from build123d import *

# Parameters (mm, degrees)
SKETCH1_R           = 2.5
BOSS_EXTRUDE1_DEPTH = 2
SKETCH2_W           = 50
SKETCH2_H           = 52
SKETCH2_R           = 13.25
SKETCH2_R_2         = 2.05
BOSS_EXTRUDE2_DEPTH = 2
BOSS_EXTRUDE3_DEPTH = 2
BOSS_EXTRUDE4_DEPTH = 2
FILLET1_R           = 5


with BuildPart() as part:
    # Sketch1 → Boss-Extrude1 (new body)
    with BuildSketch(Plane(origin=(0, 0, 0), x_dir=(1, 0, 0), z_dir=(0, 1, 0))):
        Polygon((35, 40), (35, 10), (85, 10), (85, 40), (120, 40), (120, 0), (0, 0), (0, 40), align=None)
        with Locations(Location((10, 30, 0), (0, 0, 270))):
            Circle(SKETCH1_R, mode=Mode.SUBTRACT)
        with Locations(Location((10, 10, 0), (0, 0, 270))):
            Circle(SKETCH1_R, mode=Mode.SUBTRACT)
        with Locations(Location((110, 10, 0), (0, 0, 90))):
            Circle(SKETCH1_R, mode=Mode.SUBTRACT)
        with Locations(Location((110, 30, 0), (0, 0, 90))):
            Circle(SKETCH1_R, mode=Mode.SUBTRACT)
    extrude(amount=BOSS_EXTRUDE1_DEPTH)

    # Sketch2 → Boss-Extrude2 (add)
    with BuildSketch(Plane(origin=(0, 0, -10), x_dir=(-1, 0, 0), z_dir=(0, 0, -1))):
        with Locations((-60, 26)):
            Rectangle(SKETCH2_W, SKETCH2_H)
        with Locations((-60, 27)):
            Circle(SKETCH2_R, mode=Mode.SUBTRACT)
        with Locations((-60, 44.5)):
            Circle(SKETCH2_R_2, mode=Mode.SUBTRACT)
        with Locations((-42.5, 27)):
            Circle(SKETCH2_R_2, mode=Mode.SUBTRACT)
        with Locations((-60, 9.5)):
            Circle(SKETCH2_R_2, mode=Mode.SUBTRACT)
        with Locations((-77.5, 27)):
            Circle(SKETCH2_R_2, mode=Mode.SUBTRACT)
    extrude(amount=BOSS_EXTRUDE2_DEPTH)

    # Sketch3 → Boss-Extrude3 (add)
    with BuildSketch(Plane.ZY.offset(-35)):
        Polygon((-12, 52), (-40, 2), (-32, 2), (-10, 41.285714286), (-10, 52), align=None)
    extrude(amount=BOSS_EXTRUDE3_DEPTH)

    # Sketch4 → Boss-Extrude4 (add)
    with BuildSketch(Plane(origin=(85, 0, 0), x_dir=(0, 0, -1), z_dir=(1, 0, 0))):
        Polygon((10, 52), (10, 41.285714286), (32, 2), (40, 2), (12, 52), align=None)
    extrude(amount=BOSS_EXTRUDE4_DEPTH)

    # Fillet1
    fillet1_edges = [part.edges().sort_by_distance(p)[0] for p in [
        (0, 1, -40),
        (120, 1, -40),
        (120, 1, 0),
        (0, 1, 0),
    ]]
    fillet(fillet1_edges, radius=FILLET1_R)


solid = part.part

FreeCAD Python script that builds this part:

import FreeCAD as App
import Part
import Sketcher

V = App.Vector


def edges_at(feature, points):
    """Names of the edges that pass closest to the given points."""
    edges = feature.Shape.Edges
    near = lambda p: min(range(len(edges)), key=lambda i: edges[i].distToShape(Part.Vertex(*p))[0])
    return sorted({f"Edge{near(p) + 1}" for p in points})


def add_polygon(sketch, points):
    """Adds a closed chain of lines whose ends are joined by coincident constraints."""
    first, n = sketch.GeometryCount, len(points)
    for a, b in zip(points, points[1:] + points[:1]):
        sketch.addGeometry(Part.LineSegment(App.Vector(*a, 0), App.Vector(*b, 0)), False)
    for i in range(n):
        sketch.addConstraint(Sketcher.Constraint("Coincident", first + i, 2, first + (i + 1) % n, 1))

doc = App.newDocument("Part")
body = doc.addObject("PartDesign::Body", "Body")

# Sketch on XZ plane
sketch1 = body.newObject("Sketcher::SketchObject", "Sketch")
sketch1.AttachmentSupport = (doc.getObject("XZ_Plane"), [""])
sketch1.MapMode = "FlatFace"
add_polygon(sketch1, [(35, -10), (35, -40), (0, -40), (0, 0), (120, 0), (120, -40), (85, -40), (85, -10)])  # lines 0-7
sketch1.addGeometry(Part.Circle(V(110, -10, 0), V(0, 0, 1), 2.5), False)  # 8
sketch1.addGeometry(Part.Circle(V(10, -10, 0), V(0, 0, 1), 2.5), False)  # 9
sketch1.addGeometry(Part.Circle(V(110, -30, 0), V(0, 0, 1), 2.5), False)  # 10
sketch1.addGeometry(Part.Circle(V(10, -30, 0), V(0, 0, 1), 2.5), False)  # 11
sketch1.addConstraint([
    Sketcher.Constraint("Vertical", 0),
    Sketcher.Constraint("Horizontal", 1),
    Sketcher.Constraint("Vertical", 2),
    Sketcher.Constraint("Horizontal", 3),
    Sketcher.Constraint("Vertical", 4),
    Sketcher.Constraint("Horizontal", 5),
    Sketcher.Constraint("Vertical", 6),
    Sketcher.Constraint("Horizontal", 7),
    Sketcher.Constraint("Coincident", 2, 2, -1, 1),
    Sketcher.Constraint("Equal", 8, 9),
    Sketcher.Constraint("Equal", 9, 10),
    Sketcher.Constraint("Equal", 10, 11),
    Sketcher.Constraint("Horizontal", 8, 3, 9, 3),
    Sketcher.Constraint("Horizontal", 10, 3, 11, 3),
    Sketcher.Constraint("Horizontal", 1, 2, 4, 2),
    Sketcher.Constraint("Horizontal", 9, 3, 6, 2),
    Sketcher.Constraint("Vertical", 8, 3, 10, 3),
    Sketcher.Constraint("Vertical", 9, 3, 11, 3),
    Sketcher.Constraint("Equal", 1, 5),
    Sketcher.Constraint("Diameter", 8, 5.0),
    Sketcher.Constraint("DistanceX", 1, 2, 1, 1, 35.0),
    Sketcher.Constraint("DistanceX", 3, 1, 3, 2, 120.0),
    Sketcher.Constraint("DistanceY", 0, 2, 0, 1, 30.0),
    Sketcher.Constraint("DistanceY", 2, 1, 2, 2, 40.0),
    Sketcher.Constraint("DistanceX", -1, 1, 8, 3, 110.0),
    Sketcher.Constraint("DistanceX", -1, 1, 9, 3, 10.0),
    Sketcher.Constraint("DistanceY", 10, 3, -1, 1, 30.0),
])
pad1 = body.newObject("PartDesign::Pad", "Pad")
pad1.Profile = sketch1
pad1.Length = 2
pad1.Reversed = True

# Sketch on XY plane
sketch2 = body.newObject("Sketcher::SketchObject", "Sketch001")
sketch2.AttachmentSupport = (doc.getObject("XY_Plane"), [""])
sketch2.MapMode = "FlatFace"
sketch2.AttachmentOffset = App.Placement(V(0, 0, -10), App.Rotation())
add_polygon(sketch2, [(85, 52), (85, 0), (35, 0), (35, 52)])  # lines 0-3
sketch2.addGeometry(Part.Circle(V(60, 9.5, 0), V(0, 0, 1), 2), False)  # 4
sketch2.addGeometry(Part.Circle(V(77.5, 27, 0), V(0, 0, 1), 2), False)  # 5
sketch2.addGeometry(Part.Circle(V(60, 27, 0), V(0, 0, 1), 13.2), False)  # 6
sketch2.addGeometry(Part.Circle(V(42.5, 27, 0), V(0, 0, 1), 2), False)  # 7
sketch2.addGeometry(Part.Circle(V(60, 44.5, 0), V(0, 0, 1), 2), False)  # 8
sketch2.addConstraint([
    Sketcher.Constraint("Vertical", 0),
    Sketcher.Constraint("Horizontal", 1),
    Sketcher.Constraint("Vertical", 2),
    Sketcher.Constraint("Horizontal", 3),
    Sketcher.Constraint("Equal", 4, 5),
    Sketcher.Constraint("Equal", 5, 7),
    Sketcher.Constraint("Equal", 7, 8),
    Sketcher.Constraint("PointOnObject", 0, 2, -1),
    Sketcher.Constraint("Horizontal", 5, 3, 6, 3),
    Sketcher.Constraint("Horizontal", 6, 3, 7, 3),
    Sketcher.Constraint("Vertical", 4, 3, 6, 3),
    Sketcher.Constraint("Vertical", 6, 3, 8, 3),
    Sketcher.Constraint("Diameter", 4, 4.1),
    Sketcher.Constraint("Diameter", 6, 26.5),
    Sketcher.Constraint("DistanceX", 1, 2, 1, 1, 50.0),
    Sketcher.Constraint("DistanceY", 0, 2, 0, 1, 52.0),
    Sketcher.Constraint("DistanceX", -1, 1, 4, 3, 60.0),
    Sketcher.Constraint("DistanceY", -1, 1, 5, 3, 27.0),
    Sketcher.Constraint("DistanceX", -1, 1, 0, 2, 85.0),
    Sketcher.Constraint("DistanceX", 7, 3, 5, 3, 35.0),
    Sketcher.Constraint("DistanceY", 4, 3, 8, 3, 35.0),
    Sketcher.Constraint("DistanceY", -1, 1, 4, 3, 9.5),
    Sketcher.Constraint("DistanceX", -1, 1, 5, 3, 77.5),
])
pad2 = body.newObject("PartDesign::Pad", "Pad001")
pad2.Profile = sketch2
pad2.Length = 2
pad2.Reversed = True

# Sketch on YZ plane
sketch3 = body.newObject("Sketcher::SketchObject", "Sketch002")
sketch3.AttachmentSupport = (doc.getObject("YZ_Plane"), [""])
sketch3.MapMode = "FlatFace"
sketch3.AttachmentOffset = App.Placement(V(0, 0, 35), App.Rotation())
add_polygon(sketch3, [(52, -12), (2, -40), (2, -32), (41.3, -10), (52, -10)])  # lines 0-4
sketch3.addConstraint([
    Sketcher.Constraint("Vertical", 1),
    Sketcher.Constraint("Horizontal", 3),
    Sketcher.Constraint("Vertical", 4),
    Sketcher.Constraint("Parallel", 0, 2),
    Sketcher.Constraint("DistanceY", 1, 1, 1, 2, 8.0),
    Sketcher.Constraint("DistanceY", 4, 2, 4, 1, 2.0),
    Sketcher.Constraint("DistanceX", -1, 1, 0, 2, 2.0),
    Sketcher.Constraint("DistanceY", 0, 2, -1, 1, 40.0),
    Sketcher.Constraint("DistanceY", 2, 2, -1, 1, 10.0),
    Sketcher.Constraint("DistanceX", -1, 1, 3, 2, 52.0),
])
pad3 = body.newObject("PartDesign::Pad", "Pad002")
pad3.Profile = sketch3
pad3.Length = 2
pad3.Reversed = True

# Sketch on YZ plane
sketch4 = body.newObject("Sketcher::SketchObject", "Sketch003")
sketch4.AttachmentSupport = (doc.getObject("YZ_Plane"), [""])
sketch4.MapMode = "FlatFace"
sketch4.AttachmentOffset = App.Placement(V(0, 0, 85), App.Rotation())
add_polygon(sketch4, [(52, -10), (41.3, -10), (2, -32), (2, -40), (52, -12)])  # lines 0-4
sketch4.addConstraint([
    Sketcher.Constraint("Horizontal", 0),
    Sketcher.Constraint("Vertical", 2),
    Sketcher.Constraint("Vertical", 4),
    Sketcher.Constraint("Parallel", 1, 3),
    Sketcher.Constraint("DistanceY", 2, 2, 2, 1, 8.0),
    Sketcher.Constraint("DistanceY", 4, 1, 4, 2, 2.0),
    Sketcher.Constraint("DistanceY", 0, 2, -1, 1, 10.0),
    Sketcher.Constraint("DistanceX", -1, 1, 1, 2, 2.0),
    Sketcher.Constraint("DistanceY", 1, 2, -1, 1, 32.0),
    Sketcher.Constraint("DistanceX", -1, 1, 3, 2, 52.0),
])
pad4 = body.newObject("PartDesign::Pad", "Pad003")
pad4.Profile = sketch4
pad4.Length = 2
doc.recompute()

fillet = body.newObject("PartDesign::Fillet", "Fillet")
fillet.Base = (pad4, edges_at(pad4, [
    (0, 1, -40),
    (120, 1, -40),
    (120, 1, 0),
    (0, 1, 0),
]))
fillet.Radius = 5

doc.recompute()
